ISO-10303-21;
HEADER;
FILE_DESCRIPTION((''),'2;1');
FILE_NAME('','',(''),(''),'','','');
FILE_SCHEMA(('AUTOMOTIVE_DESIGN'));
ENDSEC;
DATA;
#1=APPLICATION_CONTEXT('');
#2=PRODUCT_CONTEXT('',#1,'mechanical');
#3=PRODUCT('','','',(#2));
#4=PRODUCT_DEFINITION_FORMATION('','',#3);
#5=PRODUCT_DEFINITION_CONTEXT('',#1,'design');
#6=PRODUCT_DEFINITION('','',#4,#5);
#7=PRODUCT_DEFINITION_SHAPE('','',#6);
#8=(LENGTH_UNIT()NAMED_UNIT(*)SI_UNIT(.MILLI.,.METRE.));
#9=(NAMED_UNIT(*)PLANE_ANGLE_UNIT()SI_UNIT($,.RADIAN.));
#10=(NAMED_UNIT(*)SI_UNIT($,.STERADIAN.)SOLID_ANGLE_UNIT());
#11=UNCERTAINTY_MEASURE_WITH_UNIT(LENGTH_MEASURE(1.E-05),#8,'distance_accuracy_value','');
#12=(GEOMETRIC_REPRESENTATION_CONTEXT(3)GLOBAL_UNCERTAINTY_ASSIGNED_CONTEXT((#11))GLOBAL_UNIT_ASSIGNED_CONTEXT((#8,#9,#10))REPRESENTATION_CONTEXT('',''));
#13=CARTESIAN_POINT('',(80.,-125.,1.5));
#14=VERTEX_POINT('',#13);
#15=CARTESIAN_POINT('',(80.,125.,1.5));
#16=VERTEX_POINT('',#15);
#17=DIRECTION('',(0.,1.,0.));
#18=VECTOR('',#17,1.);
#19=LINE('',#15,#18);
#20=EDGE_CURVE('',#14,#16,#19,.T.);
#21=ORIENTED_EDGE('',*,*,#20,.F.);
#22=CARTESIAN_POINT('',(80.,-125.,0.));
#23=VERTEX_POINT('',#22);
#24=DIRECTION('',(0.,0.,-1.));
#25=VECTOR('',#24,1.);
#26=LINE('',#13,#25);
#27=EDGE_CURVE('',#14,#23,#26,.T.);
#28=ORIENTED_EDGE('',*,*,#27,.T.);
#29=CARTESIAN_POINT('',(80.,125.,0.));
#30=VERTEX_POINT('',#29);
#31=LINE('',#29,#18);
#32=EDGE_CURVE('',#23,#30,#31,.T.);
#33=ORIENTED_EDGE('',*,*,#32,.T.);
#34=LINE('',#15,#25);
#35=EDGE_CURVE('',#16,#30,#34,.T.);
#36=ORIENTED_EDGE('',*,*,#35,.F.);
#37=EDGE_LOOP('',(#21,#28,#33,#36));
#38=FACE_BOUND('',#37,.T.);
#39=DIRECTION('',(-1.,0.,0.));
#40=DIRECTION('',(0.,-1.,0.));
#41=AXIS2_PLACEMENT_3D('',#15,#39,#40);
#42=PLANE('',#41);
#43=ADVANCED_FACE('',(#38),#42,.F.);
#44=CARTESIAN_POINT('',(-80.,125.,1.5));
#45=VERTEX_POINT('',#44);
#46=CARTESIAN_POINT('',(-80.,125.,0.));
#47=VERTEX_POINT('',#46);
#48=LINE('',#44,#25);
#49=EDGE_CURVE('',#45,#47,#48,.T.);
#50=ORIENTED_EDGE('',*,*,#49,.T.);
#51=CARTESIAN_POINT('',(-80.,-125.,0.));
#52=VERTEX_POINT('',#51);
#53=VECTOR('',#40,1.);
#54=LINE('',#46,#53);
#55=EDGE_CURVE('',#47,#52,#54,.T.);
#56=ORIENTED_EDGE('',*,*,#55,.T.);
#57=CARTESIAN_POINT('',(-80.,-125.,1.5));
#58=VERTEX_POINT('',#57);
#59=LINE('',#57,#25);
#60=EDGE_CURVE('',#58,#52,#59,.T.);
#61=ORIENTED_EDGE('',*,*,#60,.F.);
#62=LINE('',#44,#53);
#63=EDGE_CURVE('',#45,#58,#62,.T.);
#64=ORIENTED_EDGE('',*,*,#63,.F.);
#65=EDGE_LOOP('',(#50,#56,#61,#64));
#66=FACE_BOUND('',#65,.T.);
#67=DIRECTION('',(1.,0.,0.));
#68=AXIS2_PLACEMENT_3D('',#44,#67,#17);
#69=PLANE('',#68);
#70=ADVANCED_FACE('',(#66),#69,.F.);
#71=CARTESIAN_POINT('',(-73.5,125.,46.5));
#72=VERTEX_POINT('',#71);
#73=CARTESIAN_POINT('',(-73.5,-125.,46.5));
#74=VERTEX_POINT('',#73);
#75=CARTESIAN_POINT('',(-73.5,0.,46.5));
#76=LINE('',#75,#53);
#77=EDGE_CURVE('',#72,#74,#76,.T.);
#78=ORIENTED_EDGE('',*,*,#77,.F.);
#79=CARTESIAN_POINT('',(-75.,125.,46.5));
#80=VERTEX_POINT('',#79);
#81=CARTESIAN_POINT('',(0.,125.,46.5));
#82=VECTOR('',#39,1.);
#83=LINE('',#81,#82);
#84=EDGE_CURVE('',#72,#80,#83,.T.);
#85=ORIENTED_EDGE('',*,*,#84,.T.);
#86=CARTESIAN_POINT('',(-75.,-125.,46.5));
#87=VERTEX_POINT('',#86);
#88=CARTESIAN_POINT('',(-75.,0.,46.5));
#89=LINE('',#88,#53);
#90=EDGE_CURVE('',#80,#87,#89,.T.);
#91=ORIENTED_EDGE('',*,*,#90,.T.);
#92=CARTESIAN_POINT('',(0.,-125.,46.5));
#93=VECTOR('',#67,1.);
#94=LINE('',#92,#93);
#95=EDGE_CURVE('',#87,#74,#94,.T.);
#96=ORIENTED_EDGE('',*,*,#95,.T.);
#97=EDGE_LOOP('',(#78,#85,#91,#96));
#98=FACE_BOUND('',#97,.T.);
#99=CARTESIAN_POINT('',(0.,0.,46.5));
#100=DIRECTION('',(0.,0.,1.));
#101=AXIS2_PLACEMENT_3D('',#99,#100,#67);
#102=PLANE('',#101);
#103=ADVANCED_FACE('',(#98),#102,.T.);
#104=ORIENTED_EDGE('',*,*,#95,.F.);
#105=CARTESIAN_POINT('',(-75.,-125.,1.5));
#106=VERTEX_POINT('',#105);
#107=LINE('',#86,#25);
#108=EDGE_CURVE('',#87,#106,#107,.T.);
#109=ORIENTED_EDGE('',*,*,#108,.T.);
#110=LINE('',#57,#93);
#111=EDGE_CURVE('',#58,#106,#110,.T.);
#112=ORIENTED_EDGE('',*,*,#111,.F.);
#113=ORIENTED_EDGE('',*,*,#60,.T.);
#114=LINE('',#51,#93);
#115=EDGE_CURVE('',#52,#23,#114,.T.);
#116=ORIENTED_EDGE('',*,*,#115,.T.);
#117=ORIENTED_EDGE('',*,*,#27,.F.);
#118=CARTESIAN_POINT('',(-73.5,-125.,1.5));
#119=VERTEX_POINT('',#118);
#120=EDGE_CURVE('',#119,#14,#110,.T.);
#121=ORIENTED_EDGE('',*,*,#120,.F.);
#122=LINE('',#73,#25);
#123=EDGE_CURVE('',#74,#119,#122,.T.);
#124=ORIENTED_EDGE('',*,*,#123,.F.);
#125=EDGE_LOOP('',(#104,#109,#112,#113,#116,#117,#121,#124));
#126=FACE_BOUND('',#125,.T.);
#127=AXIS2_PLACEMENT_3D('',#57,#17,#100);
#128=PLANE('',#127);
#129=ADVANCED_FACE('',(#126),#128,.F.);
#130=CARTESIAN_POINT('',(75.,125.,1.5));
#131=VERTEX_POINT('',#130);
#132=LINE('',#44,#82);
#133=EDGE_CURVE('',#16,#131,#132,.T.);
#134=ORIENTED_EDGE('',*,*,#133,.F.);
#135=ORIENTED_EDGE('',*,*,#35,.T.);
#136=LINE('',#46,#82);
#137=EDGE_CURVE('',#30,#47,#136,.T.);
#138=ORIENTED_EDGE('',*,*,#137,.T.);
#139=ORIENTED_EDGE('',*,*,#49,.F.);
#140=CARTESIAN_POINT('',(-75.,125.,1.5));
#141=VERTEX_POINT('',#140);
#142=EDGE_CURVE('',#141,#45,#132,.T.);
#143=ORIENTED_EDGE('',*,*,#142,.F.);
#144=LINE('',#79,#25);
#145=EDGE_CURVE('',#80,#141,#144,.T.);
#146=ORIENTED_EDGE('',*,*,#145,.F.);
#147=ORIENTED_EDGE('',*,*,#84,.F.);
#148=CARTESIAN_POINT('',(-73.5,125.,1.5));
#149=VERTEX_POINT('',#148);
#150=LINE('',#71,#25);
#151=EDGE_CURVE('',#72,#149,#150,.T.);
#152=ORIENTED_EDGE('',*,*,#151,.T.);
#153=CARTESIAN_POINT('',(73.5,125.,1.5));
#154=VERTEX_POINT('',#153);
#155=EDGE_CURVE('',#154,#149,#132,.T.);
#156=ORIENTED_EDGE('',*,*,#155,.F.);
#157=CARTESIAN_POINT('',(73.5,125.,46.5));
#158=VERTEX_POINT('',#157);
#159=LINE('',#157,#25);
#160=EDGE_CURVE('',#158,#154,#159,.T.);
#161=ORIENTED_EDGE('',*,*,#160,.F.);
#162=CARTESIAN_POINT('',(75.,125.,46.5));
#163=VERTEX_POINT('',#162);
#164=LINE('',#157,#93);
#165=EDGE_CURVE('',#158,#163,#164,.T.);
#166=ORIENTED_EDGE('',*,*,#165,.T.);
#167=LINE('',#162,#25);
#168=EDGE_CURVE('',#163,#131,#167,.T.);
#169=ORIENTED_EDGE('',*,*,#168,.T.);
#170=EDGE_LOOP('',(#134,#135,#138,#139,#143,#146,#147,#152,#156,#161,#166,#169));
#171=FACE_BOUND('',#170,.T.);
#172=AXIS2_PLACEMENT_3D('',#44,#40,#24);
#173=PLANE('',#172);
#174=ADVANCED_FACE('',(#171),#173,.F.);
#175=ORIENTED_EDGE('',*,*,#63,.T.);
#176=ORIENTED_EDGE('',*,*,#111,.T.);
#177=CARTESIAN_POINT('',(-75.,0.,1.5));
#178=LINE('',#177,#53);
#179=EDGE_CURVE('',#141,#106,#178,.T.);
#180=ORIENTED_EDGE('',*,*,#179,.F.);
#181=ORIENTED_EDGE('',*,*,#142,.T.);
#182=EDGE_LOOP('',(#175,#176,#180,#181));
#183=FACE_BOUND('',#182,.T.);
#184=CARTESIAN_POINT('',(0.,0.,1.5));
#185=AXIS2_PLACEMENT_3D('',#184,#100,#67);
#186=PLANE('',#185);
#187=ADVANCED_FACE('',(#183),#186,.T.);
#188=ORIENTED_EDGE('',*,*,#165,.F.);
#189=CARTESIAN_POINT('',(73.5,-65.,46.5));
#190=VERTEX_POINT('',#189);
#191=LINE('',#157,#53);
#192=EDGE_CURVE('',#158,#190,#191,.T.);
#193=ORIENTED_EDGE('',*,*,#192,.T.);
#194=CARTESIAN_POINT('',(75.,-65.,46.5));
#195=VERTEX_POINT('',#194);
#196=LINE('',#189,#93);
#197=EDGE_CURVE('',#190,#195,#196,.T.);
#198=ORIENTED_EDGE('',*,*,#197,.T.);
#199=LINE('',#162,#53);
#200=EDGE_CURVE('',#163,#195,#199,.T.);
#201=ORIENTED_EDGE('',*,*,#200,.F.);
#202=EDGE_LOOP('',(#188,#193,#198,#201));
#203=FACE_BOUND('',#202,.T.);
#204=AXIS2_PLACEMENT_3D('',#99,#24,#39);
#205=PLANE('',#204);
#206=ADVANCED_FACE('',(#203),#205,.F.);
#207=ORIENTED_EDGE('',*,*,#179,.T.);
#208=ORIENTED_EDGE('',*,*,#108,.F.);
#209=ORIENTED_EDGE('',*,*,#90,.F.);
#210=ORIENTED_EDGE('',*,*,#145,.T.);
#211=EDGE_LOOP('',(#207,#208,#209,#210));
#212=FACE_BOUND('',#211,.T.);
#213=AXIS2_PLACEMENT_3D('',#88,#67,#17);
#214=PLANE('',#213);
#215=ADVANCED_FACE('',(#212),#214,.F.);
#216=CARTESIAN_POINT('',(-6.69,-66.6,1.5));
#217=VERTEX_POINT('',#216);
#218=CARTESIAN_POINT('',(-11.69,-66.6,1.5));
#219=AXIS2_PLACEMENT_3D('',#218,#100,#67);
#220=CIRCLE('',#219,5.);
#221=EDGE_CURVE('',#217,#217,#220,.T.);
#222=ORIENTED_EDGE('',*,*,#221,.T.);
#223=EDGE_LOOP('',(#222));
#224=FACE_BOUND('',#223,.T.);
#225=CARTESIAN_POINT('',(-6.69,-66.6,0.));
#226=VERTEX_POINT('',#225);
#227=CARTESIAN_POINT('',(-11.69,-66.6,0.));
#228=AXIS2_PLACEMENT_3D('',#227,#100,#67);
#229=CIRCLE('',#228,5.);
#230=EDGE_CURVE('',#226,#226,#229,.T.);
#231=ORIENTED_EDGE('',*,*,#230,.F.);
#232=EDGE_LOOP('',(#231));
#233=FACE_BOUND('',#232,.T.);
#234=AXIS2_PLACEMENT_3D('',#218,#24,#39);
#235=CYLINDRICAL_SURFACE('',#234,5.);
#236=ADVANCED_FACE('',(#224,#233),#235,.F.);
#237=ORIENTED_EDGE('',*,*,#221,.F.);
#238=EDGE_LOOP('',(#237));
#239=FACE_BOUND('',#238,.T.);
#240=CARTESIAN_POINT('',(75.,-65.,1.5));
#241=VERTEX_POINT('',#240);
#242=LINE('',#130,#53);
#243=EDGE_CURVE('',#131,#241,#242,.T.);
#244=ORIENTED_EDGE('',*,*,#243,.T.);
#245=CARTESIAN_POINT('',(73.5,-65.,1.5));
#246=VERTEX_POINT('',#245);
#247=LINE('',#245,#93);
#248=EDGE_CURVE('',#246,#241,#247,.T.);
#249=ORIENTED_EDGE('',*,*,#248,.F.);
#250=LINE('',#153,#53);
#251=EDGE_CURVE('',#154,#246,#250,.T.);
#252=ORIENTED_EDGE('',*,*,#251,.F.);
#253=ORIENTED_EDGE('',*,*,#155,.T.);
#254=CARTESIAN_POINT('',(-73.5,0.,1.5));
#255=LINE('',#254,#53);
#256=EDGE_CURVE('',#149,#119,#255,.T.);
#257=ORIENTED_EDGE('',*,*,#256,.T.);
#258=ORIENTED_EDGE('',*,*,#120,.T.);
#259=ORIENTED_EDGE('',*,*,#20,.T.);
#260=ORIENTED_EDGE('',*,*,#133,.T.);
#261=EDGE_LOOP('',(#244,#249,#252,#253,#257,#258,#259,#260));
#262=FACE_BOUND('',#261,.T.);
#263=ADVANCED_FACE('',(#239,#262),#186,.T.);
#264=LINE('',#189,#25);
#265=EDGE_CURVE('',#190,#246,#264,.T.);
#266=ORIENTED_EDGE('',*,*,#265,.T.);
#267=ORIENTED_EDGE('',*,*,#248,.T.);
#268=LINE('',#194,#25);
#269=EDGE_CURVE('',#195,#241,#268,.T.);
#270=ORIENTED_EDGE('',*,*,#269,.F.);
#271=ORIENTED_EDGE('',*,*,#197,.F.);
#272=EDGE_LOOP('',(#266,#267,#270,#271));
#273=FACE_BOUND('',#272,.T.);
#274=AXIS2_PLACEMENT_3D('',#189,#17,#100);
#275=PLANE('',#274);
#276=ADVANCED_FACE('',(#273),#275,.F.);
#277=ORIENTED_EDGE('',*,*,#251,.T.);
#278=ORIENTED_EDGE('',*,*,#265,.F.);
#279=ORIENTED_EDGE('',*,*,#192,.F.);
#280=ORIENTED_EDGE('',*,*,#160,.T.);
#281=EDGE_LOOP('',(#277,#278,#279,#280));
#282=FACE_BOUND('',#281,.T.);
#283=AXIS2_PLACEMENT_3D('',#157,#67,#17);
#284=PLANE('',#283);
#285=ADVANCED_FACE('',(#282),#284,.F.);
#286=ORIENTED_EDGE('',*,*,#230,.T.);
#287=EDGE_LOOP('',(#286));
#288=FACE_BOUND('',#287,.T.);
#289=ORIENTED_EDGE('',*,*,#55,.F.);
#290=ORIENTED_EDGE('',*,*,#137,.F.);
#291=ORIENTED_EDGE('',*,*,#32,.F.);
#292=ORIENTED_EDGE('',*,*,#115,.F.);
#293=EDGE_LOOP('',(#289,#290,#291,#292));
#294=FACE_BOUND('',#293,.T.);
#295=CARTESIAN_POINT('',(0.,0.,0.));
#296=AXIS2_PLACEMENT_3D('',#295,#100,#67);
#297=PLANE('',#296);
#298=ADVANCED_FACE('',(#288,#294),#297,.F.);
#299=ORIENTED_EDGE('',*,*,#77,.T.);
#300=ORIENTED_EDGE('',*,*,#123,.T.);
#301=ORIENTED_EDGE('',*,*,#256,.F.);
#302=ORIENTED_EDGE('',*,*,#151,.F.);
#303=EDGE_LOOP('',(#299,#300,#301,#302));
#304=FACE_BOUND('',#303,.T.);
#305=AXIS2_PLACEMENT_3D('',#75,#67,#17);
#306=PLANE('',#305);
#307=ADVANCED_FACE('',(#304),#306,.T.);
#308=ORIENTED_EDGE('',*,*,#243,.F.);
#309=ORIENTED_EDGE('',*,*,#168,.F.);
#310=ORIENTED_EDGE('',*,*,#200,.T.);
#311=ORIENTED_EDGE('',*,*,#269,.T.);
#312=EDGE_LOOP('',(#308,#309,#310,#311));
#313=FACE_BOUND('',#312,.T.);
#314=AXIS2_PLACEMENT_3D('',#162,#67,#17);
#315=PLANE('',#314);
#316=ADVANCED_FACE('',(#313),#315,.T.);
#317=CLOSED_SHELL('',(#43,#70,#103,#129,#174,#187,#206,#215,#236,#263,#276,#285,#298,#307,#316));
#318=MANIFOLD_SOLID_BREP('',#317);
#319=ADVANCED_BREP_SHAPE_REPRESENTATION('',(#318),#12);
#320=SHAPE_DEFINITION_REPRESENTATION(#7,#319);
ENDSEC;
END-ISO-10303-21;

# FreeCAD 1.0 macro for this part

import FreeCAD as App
import Part
import Sketcher
from FreeCAD import Vector

doc = App.newDocument("Part")
body = doc.addObject("PartDesign::Body", "Body")

sketch1 = doc.addObject("Sketcher::SketchObject", "Sketch")
body.addObject(sketch1)
sketch1.AttachmentSupport = (doc.XY_Plane, [""])
sketch1.MapMode = "FlatFace"
sketch1.addGeometry(Part.LineSegment(Vector(-80, 125, 0), Vector(-80, -125, 0)), False)
sketch1.addGeometry(Part.LineSegment(Vector(-80, -125, 0), Vector(80, -125, 0)), False)
sketch1.addGeometry(Part.LineSegment(Vector(80, -125, 0), Vector(80, 125, 0)), False)
sketch1.addGeometry(Part.LineSegment(Vector(80, 125, 0), Vector(-80, 125, 0)), False)
sketch1.addConstraint(Sketcher.Constraint("Coincident", 0, 2, 1, 1))
sketch1.addConstraint(Sketcher.Constraint("Coincident", 1, 2, 2, 1))
sketch1.addConstraint(Sketcher.Constraint("Coincident", 2, 2, 3, 1))
sketch1.addConstraint(Sketcher.Constraint("Coincident", 3, 2, 0, 1))
sketch1.addConstraint(Sketcher.Constraint("Vertical", 0))
sketch1.addConstraint(Sketcher.Constraint("Horizontal", 1))
sketch1.addConstraint(Sketcher.Constraint("Vertical", 2))
sketch1.addConstraint(Sketcher.Constraint("Horizontal", 3))
sketch1.addConstraint(Sketcher.Constraint("Symmetric", 0, 2, 2, 2, -1, 1))
sketch1.addConstraint(Sketcher.Constraint("DistanceX", 1, 1, 1, 2, 160.0))
sketch1.addConstraint(Sketcher.Constraint("DistanceY", 0, 2, 0, 1, 250.0))
pad1 = doc.addObject("PartDesign::Pad", "Pad")
body.addObject(pad1)
pad1.Profile = sketch1
pad1.Length = 1.5

sketch2 = doc.addObject("Sketcher::SketchObject", "Sketch001")
body.addObject(sketch2)
sketch2.AttachmentSupport = (doc.XY_Plane, [""])
sketch2.MapMode = "FlatFace"
sketch2.addGeometry(Part.Circle(Vector(-11.69, -66.6, 0), Vector(0, 0, 1), 5), False)
sketch2.addConstraint(Sketcher.Constraint("Diameter", 0, 10.0))
sketch2.addConstraint(Sketcher.Constraint("DistanceY", 0, 3, -1, 1, 66.6))
sketch2.addConstraint(Sketcher.Constraint("DistanceX", 0, 3, -1, 1, 11.69))
pocket1 = doc.addObject("PartDesign::Pocket", "Pocket")
body.addObject(pocket1)
pocket1.Profile = sketch2
pocket1.Type = "ThroughAll"
pocket1.Reversed = True

sketch3 = doc.addObject("Sketcher::SketchObject", "Sketch002")
body.addObject(sketch3)
sketch3.AttachmentSupport = (doc.XY_Plane, [""])
sketch3.MapMode = "FlatFace"
sketch3.AttachmentOffset = App.Placement(Vector(0, 0, 1.5), App.Rotation())
sketch3.addGeometry(Part.LineSegment(Vector(-73.5, 125, 0), Vector(-75, 125, 0)), False)
sketch3.addGeometry(Part.LineSegment(Vector(-75, 125, 0), Vector(-75, -125, 0)), False)
sketch3.addGeometry(Part.LineSegment(Vector(-75, -125, 0), Vector(-73.5, -125, 0)), False)
sketch3.addGeometry(Part.LineSegment(Vector(-73.5, -125, 0), Vector(-73.5, 125, 0)), False)
sketch3.addGeometry(Part.LineSegment(Vector(73.5, 125, 0), Vector(73.5, -65, 0)), False)
sketch3.addGeometry(Part.LineSegment(Vector(73.5, -65, 0), Vector(75, -65, 0)), False)
sketch3.addGeometry(Part.LineSegment(Vector(75, -65, 0), Vector(75, 125, 0)), False)
sketch3.addGeometry(Part.LineSegment(Vector(75, 125, 0), Vector(73.5, 125, 0)), False)
sketch3.addConstraint(Sketcher.Constraint("Coincident", 0, 2, 1, 1))
sketch3.addConstraint(Sketcher.Constraint("Coincident", 1, 2, 2, 1))
sketch3.addConstraint(Sketcher.Constraint("Coincident", 2, 2, 3, 1))
sketch3.addConstraint(Sketcher.Constraint("Coincident", 3, 2, 0, 1))
sketch3.addConstraint(Sketcher.Constraint("Coincident", 4, 2, 5, 1))
sketch3.addConstraint(Sketcher.Constraint("Coincident", 5, 2, 6, 1))
sketch3.addConstraint(Sketcher.Constraint("Coincident", 6, 2, 7, 1))
sketch3.addConstraint(Sketcher.Constraint("Coincident", 7, 2, 4, 1))
sketch3.addConstraint(Sketcher.Constraint("Horizontal", 0))
sketch3.addConstraint(Sketcher.Constraint("Vertical", 1))
sketch3.addConstraint(Sketcher.Constraint("Horizontal", 2))
sketch3.addConstraint(Sketcher.Constraint("Vertical", 3))
sketch3.addConstraint(Sketcher.Constraint("Vertical", 4))
sketch3.addConstraint(Sketcher.Constraint("Horizontal", 5))
sketch3.addConstraint(Sketcher.Constraint("Vertical", 6))
sketch3.addConstraint(Sketcher.Constraint("Horizontal", 7))
sketch3.addConstraint(Sketcher.Constraint("Symmetric", 1, 2, 6, 2, -1, 1))
sketch3.addConstraint(Sketcher.Constraint("Symmetric", 3, 2, 7, 2, -2))
sketch3.addConstraint(Sketcher.Constraint("DistanceY", 1, 2, 1, 1, 250.0))
sketch3.addConstraint(Sketcher.Constraint("DistanceY", 4, 2, 4, 1, 190.0))
sketch3.addConstraint(Sketcher.Constraint("DistanceX", 0, 2, 0, 1, 1.5))
sketch3.addConstraint(Sketcher.Constraint("DistanceX", 0, 2, -1, 1, 75.0))
pad2 = doc.addObject("PartDesign::Pad", "Pad001")
body.addObject(pad2)
pad2.Profile = sketch3
pad2.Length = 45

doc.recompute()
